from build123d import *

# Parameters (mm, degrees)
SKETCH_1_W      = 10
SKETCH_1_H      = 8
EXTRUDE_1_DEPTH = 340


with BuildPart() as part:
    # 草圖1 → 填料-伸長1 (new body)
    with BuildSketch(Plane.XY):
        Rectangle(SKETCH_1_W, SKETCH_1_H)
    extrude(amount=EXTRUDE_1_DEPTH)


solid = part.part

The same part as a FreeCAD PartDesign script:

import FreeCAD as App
import Part
import Sketcher
Q = App.Units.Quantity

doc = App.newDocument("Part")
body = doc.addObject("PartDesign::Body", "Body")

sketch1 = body.newObject("Sketcher::SketchObject", "Sketch")
sketch1.AttachmentSupport = (doc.getObject("XY_Plane"), [""])
sketch1.MapMode = "FlatFace"
sketch1.addGeometry([
    Part.LineSegment(App.Vector(-5, 4, 0), App.Vector(-5, -4, 0)),
    Part.LineSegment(App.Vector(-5, -4, 0), App.Vector(5, -4, 0)),
    Part.LineSegment(App.Vector(5, -4, 0), App.Vector(5, 4, 0)),
    Part.LineSegment(App.Vector(5, 4, 0), App.Vector(-5, 4, 0)),
], False)
sketch1.addConstraint([
    Sketcher.Constraint("Coincident", 0, 2, 1, 1),
    Sketcher.Constraint("Coincident", 1, 2, 2, 1),
    Sketcher.Constraint("Coincident", 2, 2, 3, 1),
    Sketcher.Constraint("Coincident", 3, 2, 0, 1),
    Sketcher.Constraint("Vertical", 0),
    Sketcher.Constraint("Horizontal", 1),
    Sketcher.Constraint("Vertical", 2),
    Sketcher.Constraint("Horizontal", 3),
    Sketcher.Constraint("Symmetric", 0, 2, 2, 2, -1, 1),
    Sketcher.Constraint("DistanceX", 1, 1, 1, 2, Q("10 mm")),
    Sketcher.Constraint("DistanceY", 0, 2, 0, 1, Q("8 mm")),
])
pad1 = body.newObject("PartDesign::Pad", "Pad")
pad1.Profile = sketch1
pad1.Length = 340

doc.recompute()
